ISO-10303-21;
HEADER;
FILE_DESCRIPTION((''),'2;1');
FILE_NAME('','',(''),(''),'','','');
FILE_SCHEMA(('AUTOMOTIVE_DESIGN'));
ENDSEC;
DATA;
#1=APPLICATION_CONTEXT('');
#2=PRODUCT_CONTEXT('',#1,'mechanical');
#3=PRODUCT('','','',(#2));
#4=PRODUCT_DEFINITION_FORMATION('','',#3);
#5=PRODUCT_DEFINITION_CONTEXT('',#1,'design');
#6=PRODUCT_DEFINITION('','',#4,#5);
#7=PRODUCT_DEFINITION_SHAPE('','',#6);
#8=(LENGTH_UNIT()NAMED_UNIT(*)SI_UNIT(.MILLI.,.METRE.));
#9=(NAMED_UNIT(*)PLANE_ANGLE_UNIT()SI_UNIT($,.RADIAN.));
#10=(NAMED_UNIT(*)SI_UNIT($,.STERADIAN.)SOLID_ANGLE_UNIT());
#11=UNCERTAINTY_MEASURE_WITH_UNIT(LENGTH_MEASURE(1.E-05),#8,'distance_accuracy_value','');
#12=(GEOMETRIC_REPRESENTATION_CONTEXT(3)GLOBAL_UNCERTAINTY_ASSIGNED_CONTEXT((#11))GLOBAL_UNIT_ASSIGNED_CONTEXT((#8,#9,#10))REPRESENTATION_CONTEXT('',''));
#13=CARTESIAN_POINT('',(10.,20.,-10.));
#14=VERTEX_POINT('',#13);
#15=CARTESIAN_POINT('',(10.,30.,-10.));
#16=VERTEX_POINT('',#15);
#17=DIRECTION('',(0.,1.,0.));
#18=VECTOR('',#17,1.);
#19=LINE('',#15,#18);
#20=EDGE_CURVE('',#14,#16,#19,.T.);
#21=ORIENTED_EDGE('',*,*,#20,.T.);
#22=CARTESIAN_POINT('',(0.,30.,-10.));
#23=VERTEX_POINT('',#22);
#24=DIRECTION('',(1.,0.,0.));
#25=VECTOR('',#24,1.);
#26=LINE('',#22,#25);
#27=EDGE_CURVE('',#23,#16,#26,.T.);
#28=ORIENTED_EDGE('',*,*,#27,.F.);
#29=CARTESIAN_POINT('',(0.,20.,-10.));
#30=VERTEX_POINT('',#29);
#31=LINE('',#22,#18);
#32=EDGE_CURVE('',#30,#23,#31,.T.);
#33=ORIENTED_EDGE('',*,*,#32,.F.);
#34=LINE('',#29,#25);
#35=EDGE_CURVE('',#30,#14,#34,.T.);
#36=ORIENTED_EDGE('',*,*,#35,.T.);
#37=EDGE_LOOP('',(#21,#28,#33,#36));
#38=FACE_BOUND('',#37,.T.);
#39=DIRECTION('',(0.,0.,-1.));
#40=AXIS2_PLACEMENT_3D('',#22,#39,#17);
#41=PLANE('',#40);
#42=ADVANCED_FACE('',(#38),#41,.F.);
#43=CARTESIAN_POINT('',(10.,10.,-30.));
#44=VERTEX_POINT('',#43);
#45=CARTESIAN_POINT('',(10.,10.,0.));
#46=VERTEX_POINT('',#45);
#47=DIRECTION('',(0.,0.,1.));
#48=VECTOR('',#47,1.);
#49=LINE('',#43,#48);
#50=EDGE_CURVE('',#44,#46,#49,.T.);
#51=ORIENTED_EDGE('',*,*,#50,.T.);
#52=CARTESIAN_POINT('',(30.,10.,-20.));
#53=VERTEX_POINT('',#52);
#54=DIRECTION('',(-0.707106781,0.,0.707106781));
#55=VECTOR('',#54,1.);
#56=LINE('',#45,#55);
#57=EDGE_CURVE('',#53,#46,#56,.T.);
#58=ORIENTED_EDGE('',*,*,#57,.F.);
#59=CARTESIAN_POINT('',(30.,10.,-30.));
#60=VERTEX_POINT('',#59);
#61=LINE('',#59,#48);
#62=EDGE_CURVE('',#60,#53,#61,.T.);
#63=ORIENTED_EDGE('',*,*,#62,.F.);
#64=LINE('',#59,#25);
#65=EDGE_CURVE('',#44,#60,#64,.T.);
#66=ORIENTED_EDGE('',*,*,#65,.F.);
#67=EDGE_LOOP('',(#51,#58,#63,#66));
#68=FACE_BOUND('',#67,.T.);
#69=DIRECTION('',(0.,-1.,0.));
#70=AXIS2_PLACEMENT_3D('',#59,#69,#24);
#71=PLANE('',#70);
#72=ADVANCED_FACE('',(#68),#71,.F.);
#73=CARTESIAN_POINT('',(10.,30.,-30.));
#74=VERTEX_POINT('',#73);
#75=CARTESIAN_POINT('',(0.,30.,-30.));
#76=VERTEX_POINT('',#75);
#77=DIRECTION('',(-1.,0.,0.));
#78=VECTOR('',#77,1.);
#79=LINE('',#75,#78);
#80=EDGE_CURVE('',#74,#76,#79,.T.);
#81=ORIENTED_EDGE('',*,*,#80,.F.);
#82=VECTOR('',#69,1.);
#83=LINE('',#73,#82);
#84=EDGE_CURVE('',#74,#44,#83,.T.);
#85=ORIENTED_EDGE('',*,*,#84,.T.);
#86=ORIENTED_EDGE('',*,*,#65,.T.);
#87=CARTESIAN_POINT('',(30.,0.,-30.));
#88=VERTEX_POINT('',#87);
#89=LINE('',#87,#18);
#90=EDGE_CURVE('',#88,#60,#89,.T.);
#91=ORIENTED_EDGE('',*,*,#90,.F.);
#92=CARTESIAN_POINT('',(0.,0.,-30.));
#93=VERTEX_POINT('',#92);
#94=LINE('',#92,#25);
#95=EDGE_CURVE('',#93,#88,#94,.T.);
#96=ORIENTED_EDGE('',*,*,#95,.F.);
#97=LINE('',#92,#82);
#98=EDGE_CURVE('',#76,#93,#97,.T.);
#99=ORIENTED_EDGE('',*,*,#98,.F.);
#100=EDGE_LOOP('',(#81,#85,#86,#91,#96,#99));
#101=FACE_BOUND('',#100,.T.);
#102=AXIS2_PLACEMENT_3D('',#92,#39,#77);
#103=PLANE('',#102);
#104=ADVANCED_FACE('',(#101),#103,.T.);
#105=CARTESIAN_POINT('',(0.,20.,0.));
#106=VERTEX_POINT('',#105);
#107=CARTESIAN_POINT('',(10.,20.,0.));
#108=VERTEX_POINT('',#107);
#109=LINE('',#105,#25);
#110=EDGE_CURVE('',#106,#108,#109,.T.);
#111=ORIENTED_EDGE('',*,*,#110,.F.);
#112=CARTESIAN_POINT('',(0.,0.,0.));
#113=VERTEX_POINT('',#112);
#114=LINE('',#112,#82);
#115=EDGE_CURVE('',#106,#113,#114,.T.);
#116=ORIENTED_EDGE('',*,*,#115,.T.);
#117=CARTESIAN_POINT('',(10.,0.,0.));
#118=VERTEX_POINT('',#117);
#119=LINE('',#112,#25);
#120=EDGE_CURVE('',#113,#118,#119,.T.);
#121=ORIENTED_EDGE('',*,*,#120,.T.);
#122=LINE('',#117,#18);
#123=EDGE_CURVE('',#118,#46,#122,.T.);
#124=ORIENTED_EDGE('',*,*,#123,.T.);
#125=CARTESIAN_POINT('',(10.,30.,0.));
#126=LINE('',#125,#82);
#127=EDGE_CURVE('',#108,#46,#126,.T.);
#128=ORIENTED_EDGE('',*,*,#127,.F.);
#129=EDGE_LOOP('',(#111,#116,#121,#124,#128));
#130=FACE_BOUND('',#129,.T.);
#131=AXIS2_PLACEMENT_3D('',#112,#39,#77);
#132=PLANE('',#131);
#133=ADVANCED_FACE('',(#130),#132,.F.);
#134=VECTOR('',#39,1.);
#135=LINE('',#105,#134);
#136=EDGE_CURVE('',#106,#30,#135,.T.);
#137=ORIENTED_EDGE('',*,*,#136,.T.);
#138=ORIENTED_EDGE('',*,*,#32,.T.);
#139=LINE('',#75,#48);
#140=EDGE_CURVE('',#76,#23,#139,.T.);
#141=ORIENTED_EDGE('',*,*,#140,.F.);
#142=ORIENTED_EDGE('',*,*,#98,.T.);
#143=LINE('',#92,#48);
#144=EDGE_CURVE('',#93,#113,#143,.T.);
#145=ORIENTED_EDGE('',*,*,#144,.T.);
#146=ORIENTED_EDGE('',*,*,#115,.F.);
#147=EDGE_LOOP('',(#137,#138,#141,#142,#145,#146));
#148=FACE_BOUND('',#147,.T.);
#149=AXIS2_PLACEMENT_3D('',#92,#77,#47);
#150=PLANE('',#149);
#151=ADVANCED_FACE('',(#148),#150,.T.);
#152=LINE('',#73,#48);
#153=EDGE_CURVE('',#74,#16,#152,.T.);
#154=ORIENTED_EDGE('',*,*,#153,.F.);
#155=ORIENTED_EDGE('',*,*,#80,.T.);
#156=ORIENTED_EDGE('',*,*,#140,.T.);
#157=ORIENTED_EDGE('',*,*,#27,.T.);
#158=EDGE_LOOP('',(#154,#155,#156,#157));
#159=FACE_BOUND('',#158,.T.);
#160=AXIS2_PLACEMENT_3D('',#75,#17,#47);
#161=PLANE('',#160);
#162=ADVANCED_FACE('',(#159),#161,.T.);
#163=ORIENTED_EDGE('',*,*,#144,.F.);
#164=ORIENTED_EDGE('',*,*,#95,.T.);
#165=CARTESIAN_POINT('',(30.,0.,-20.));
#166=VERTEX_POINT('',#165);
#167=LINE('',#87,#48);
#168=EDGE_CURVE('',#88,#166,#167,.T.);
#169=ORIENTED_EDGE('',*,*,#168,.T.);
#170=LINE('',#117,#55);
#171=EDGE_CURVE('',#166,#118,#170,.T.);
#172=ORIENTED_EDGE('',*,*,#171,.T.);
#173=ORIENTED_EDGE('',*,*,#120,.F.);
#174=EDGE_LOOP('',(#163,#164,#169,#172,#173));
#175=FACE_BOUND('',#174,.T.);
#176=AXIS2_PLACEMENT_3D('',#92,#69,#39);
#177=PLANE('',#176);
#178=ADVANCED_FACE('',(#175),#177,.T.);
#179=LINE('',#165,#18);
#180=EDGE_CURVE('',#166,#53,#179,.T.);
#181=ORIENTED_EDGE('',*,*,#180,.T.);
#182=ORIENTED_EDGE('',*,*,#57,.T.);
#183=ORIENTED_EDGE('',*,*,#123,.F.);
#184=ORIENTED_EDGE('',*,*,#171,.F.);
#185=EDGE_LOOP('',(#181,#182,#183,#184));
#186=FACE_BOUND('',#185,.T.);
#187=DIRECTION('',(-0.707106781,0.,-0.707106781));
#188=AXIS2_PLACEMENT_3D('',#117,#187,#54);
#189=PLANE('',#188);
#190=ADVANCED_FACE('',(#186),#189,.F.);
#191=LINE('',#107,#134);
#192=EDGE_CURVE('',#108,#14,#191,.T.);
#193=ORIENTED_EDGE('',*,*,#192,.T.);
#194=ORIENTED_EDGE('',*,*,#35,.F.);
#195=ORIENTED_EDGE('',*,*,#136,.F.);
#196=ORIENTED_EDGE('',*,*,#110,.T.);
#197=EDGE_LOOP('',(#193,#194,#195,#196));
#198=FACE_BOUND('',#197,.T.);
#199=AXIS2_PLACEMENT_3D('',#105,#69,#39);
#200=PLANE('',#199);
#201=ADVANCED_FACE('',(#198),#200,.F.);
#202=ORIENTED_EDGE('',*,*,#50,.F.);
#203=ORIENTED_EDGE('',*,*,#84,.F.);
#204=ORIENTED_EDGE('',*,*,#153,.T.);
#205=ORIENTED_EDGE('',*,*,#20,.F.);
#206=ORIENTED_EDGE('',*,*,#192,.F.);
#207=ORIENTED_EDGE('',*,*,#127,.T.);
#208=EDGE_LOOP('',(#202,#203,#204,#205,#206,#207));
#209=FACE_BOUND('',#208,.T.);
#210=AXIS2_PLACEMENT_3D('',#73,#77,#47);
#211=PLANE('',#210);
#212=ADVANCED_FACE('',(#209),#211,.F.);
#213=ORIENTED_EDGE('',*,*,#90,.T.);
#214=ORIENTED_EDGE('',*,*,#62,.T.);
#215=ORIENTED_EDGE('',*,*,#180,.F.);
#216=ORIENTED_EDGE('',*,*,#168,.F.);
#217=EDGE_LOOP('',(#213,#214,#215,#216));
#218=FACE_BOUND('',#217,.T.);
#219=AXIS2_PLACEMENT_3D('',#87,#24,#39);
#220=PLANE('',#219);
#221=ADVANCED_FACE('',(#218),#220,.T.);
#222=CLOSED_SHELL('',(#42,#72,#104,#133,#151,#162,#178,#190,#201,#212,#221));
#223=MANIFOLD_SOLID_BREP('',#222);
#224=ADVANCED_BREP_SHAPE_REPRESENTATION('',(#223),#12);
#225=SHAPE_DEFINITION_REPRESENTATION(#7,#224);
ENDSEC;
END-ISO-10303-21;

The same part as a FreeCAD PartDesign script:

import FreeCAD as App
import Part
import Sketcher
from FreeCAD import Vector

doc = App.newDocument("Part")
body = doc.addObject("PartDesign::Body", "Body")

sketch1 = body.newObject("Sketcher::SketchObject", "Sketch")
sketch1.AttachmentSupport = (doc.getObject("XY_Plane"), [""])
sketch1.MapMode = "FlatFace"
sketch1.addGeometry(Part.LineSegment(Vector(0, 30, 0), Vector(0, 0, 0)), False)
sketch1.addGeometry(Part.LineSegment(Vector(0, 0, 0), Vector(30, 0, 0)), False)
sketch1.addGeometry(Part.LineSegment(Vector(30, 0, 0), Vector(30, 30, 0)), False)
sketch1.addGeometry(Part.LineSegment(Vector(30, 30, 0), Vector(0, 30, 0)), False)
sketch1.addConstraint(Sketcher.Constraint("Coincident", 0, 2, 1, 1))
sketch1.addConstraint(Sketcher.Constraint("Coincident", 1, 2, 2, 1))
sketch1.addConstraint(Sketcher.Constraint("Coincident", 2, 2, 3, 1))
sketch1.addConstraint(Sketcher.Constraint("Coincident", 3, 2, 0, 1))
sketch1.addConstraint(Sketcher.Constraint("Vertical", 0))
sketch1.addConstraint(Sketcher.Constraint("Horizontal", 1))
sketch1.addConstraint(Sketcher.Constraint("Vertical", 2))
sketch1.addConstraint(Sketcher.Constraint("Horizontal", 3))
sketch1.addConstraint(Sketcher.Constraint("Coincident", 0, 2, -1, 1))
sketch1.addConstraint(Sketcher.Constraint("Equal", 3, 0))
sketch1.addConstraint(Sketcher.Constraint("DistanceX", 1, 1, 1, 2, 30.0))
pad1 = body.newObject("PartDesign::Pad", "Pad")
pad1.Profile = sketch1
pad1.Length = 30
pad1.Reversed = True

sketch2 = body.newObject("Sketcher::SketchObject", "Sketch001")
sketch2.AttachmentSupport = (doc.getObject("XY_Plane"), [""])
sketch2.MapMode = "FlatFace"
sketch2.addGeometry(Part.LineSegment(Vector(10, 30, 0), Vector(10, 10, 0)), False)
sketch2.addGeometry(Part.LineSegment(Vector(10, 10, 0), Vector(30, 10, 0)), False)
sketch2.addGeometry(Part.LineSegment(Vector(30, 10, 0), Vector(30, 30, 0)), False)
sketch2.addGeometry(Part.LineSegment(Vector(30, 30, 0), Vector(10, 30, 0)), False)
sketch2.addConstraint(Sketcher.Constraint("Coincident", 0, 2, 1, 1))
sketch2.addConstraint(Sketcher.Constraint("Coincident", 1, 2, 2, 1))
sketch2.addConstraint(Sketcher.Constraint("Coincident", 2, 2, 3, 1))
sketch2.addConstraint(Sketcher.Constraint("Coincident", 3, 2, 0, 1))
sketch2.addConstraint(Sketcher.Constraint("Vertical", 0))
sketch2.addConstraint(Sketcher.Constraint("Horizontal", 1))
sketch2.addConstraint(Sketcher.Constraint("Vertical", 2))
sketch2.addConstraint(Sketcher.Constraint("Horizontal", 3))
sketch2.addConstraint(Sketcher.Constraint("Equal", 3, 0))
sketch2.addConstraint(Sketcher.Constraint("DistanceX", 1, 1, 1, 2, 20.0))
sketch2.addConstraint(Sketcher.Constraint("DistanceX", -1, 1, 0, 2, 10.0))
sketch2.addConstraint(Sketcher.Constraint("DistanceY", -1, 1, 0, 2, 10.0))
pocket1 = body.newObject("PartDesign::Pocket", "Pocket")
pocket1.Profile = sketch2
pocket1.Type = "ThroughAll"

sketch3 = body.newObject("Sketcher::SketchObject", "Sketch002")
sketch3.AttachmentSupport = (doc.getObject("YZ_Plane"), [""])
sketch3.MapMode = "FlatFace"
sketch3.AttachmentOffset = App.Placement(Vector(0, 0, 10), App.Rotation())
sketch3.addGeometry(Part.LineSegment(Vector(30, 0, 0), Vector(20, 0, 0)), False)
sketch3.addGeometry(Part.LineSegment(Vector(20, 0, 0), Vector(20, -10, 0)), False)
sketch3.addGeometry(Part.LineSegment(Vector(20, -10, 0), Vector(30, -10, 0)), False)
sketch3.addGeometry(Part.LineSegment(Vector(30, -10, 0), Vector(30, 0, 0)), False)
sketch3.addConstraint(Sketcher.Constraint("Coincident", 0, 2, 1, 1))
sketch3.addConstraint(Sketcher.Constraint("Coincident", 1, 2, 2, 1))
sketch3.addConstraint(Sketcher.Constraint("Coincident", 2, 2, 3, 1))
sketch3.addConstraint(Sketcher.Constraint("Coincident", 3, 2, 0, 1))
sketch3.addConstraint(Sketcher.Constraint("Horizontal", 0))
sketch3.addConstraint(Sketcher.Constraint("Vertical", 1))
sketch3.addConstraint(Sketcher.Constraint("Horizontal", 2))
sketch3.addConstraint(Sketcher.Constraint("Vertical", 3))
sketch3.addConstraint(Sketcher.Constraint("PointOnObject", 0, 2, -1))
sketch3.addConstraint(Sketcher.Constraint("Equal", 2, 1))
sketch3.addConstraint(Sketcher.Constraint("DistanceX", 0, 2, 0, 1, 10.0))
sketch3.addConstraint(Sketcher.Constraint("DistanceX", -1, 1, 0, 2, 20.0))
pocket2 = body.newObject("PartDesign::Pocket", "Pocket001")
pocket2.Profile = sketch3
pocket2.Type = "ThroughAll"

sketch4 = body.newObject("Sketcher::SketchObject", "Sketch003")
sketch4.AttachmentSupport = (doc.getObject("XZ_Plane"), [""])
sketch4.MapMode = "FlatFace"
sketch4.AttachmentOffset = App.Placement(Vector(0, 0, -10), App.Rotation())
sketch4.addGeometry(Part.LineSegment(Vector(30, -20, 0), Vector(10, 0, 0)), False)
sketch4.addGeometry(Part.LineSegment(Vector(10, 0, 0), Vector(30, 0, 0)), False)
sketch4.addGeometry(Part.LineSegment(Vector(30, 0, 0), Vector(30, -20, 0)), False)
sketch4.addConstraint(Sketcher.Constraint("Coincident", 0, 2, 1, 1))
sketch4.addConstraint(Sketcher.Constraint("Coincident", 1, 2, 2, 1))
sketch4.addConstraint(Sketcher.Constraint("Coincident", 2, 2, 0, 1))
sketch4.addConstraint(Sketcher.Constraint("Horizontal", 1))
sketch4.addConstraint(Sketcher.Constraint("Vertical", 2))
sketch4.addConstraint(Sketcher.Constraint("PointOnObject", 0, 2, -1))
sketch4.addConstraint(Sketcher.Constraint("Equal", 1, 2))
sketch4.addConstraint(Sketcher.Constraint("DistanceX", 1, 1, 1, 2, 20.0))
sketch4.addConstraint(Sketcher.Constraint("DistanceX", -1, 1, 0, 2, 10.0))
pocket3 = body.newObject("PartDesign::Pocket", "Pocket002")
pocket3.Profile = sketch4
pocket3.Type = "ThroughAll"
pocket3.Reversed = True

doc.recompute()
